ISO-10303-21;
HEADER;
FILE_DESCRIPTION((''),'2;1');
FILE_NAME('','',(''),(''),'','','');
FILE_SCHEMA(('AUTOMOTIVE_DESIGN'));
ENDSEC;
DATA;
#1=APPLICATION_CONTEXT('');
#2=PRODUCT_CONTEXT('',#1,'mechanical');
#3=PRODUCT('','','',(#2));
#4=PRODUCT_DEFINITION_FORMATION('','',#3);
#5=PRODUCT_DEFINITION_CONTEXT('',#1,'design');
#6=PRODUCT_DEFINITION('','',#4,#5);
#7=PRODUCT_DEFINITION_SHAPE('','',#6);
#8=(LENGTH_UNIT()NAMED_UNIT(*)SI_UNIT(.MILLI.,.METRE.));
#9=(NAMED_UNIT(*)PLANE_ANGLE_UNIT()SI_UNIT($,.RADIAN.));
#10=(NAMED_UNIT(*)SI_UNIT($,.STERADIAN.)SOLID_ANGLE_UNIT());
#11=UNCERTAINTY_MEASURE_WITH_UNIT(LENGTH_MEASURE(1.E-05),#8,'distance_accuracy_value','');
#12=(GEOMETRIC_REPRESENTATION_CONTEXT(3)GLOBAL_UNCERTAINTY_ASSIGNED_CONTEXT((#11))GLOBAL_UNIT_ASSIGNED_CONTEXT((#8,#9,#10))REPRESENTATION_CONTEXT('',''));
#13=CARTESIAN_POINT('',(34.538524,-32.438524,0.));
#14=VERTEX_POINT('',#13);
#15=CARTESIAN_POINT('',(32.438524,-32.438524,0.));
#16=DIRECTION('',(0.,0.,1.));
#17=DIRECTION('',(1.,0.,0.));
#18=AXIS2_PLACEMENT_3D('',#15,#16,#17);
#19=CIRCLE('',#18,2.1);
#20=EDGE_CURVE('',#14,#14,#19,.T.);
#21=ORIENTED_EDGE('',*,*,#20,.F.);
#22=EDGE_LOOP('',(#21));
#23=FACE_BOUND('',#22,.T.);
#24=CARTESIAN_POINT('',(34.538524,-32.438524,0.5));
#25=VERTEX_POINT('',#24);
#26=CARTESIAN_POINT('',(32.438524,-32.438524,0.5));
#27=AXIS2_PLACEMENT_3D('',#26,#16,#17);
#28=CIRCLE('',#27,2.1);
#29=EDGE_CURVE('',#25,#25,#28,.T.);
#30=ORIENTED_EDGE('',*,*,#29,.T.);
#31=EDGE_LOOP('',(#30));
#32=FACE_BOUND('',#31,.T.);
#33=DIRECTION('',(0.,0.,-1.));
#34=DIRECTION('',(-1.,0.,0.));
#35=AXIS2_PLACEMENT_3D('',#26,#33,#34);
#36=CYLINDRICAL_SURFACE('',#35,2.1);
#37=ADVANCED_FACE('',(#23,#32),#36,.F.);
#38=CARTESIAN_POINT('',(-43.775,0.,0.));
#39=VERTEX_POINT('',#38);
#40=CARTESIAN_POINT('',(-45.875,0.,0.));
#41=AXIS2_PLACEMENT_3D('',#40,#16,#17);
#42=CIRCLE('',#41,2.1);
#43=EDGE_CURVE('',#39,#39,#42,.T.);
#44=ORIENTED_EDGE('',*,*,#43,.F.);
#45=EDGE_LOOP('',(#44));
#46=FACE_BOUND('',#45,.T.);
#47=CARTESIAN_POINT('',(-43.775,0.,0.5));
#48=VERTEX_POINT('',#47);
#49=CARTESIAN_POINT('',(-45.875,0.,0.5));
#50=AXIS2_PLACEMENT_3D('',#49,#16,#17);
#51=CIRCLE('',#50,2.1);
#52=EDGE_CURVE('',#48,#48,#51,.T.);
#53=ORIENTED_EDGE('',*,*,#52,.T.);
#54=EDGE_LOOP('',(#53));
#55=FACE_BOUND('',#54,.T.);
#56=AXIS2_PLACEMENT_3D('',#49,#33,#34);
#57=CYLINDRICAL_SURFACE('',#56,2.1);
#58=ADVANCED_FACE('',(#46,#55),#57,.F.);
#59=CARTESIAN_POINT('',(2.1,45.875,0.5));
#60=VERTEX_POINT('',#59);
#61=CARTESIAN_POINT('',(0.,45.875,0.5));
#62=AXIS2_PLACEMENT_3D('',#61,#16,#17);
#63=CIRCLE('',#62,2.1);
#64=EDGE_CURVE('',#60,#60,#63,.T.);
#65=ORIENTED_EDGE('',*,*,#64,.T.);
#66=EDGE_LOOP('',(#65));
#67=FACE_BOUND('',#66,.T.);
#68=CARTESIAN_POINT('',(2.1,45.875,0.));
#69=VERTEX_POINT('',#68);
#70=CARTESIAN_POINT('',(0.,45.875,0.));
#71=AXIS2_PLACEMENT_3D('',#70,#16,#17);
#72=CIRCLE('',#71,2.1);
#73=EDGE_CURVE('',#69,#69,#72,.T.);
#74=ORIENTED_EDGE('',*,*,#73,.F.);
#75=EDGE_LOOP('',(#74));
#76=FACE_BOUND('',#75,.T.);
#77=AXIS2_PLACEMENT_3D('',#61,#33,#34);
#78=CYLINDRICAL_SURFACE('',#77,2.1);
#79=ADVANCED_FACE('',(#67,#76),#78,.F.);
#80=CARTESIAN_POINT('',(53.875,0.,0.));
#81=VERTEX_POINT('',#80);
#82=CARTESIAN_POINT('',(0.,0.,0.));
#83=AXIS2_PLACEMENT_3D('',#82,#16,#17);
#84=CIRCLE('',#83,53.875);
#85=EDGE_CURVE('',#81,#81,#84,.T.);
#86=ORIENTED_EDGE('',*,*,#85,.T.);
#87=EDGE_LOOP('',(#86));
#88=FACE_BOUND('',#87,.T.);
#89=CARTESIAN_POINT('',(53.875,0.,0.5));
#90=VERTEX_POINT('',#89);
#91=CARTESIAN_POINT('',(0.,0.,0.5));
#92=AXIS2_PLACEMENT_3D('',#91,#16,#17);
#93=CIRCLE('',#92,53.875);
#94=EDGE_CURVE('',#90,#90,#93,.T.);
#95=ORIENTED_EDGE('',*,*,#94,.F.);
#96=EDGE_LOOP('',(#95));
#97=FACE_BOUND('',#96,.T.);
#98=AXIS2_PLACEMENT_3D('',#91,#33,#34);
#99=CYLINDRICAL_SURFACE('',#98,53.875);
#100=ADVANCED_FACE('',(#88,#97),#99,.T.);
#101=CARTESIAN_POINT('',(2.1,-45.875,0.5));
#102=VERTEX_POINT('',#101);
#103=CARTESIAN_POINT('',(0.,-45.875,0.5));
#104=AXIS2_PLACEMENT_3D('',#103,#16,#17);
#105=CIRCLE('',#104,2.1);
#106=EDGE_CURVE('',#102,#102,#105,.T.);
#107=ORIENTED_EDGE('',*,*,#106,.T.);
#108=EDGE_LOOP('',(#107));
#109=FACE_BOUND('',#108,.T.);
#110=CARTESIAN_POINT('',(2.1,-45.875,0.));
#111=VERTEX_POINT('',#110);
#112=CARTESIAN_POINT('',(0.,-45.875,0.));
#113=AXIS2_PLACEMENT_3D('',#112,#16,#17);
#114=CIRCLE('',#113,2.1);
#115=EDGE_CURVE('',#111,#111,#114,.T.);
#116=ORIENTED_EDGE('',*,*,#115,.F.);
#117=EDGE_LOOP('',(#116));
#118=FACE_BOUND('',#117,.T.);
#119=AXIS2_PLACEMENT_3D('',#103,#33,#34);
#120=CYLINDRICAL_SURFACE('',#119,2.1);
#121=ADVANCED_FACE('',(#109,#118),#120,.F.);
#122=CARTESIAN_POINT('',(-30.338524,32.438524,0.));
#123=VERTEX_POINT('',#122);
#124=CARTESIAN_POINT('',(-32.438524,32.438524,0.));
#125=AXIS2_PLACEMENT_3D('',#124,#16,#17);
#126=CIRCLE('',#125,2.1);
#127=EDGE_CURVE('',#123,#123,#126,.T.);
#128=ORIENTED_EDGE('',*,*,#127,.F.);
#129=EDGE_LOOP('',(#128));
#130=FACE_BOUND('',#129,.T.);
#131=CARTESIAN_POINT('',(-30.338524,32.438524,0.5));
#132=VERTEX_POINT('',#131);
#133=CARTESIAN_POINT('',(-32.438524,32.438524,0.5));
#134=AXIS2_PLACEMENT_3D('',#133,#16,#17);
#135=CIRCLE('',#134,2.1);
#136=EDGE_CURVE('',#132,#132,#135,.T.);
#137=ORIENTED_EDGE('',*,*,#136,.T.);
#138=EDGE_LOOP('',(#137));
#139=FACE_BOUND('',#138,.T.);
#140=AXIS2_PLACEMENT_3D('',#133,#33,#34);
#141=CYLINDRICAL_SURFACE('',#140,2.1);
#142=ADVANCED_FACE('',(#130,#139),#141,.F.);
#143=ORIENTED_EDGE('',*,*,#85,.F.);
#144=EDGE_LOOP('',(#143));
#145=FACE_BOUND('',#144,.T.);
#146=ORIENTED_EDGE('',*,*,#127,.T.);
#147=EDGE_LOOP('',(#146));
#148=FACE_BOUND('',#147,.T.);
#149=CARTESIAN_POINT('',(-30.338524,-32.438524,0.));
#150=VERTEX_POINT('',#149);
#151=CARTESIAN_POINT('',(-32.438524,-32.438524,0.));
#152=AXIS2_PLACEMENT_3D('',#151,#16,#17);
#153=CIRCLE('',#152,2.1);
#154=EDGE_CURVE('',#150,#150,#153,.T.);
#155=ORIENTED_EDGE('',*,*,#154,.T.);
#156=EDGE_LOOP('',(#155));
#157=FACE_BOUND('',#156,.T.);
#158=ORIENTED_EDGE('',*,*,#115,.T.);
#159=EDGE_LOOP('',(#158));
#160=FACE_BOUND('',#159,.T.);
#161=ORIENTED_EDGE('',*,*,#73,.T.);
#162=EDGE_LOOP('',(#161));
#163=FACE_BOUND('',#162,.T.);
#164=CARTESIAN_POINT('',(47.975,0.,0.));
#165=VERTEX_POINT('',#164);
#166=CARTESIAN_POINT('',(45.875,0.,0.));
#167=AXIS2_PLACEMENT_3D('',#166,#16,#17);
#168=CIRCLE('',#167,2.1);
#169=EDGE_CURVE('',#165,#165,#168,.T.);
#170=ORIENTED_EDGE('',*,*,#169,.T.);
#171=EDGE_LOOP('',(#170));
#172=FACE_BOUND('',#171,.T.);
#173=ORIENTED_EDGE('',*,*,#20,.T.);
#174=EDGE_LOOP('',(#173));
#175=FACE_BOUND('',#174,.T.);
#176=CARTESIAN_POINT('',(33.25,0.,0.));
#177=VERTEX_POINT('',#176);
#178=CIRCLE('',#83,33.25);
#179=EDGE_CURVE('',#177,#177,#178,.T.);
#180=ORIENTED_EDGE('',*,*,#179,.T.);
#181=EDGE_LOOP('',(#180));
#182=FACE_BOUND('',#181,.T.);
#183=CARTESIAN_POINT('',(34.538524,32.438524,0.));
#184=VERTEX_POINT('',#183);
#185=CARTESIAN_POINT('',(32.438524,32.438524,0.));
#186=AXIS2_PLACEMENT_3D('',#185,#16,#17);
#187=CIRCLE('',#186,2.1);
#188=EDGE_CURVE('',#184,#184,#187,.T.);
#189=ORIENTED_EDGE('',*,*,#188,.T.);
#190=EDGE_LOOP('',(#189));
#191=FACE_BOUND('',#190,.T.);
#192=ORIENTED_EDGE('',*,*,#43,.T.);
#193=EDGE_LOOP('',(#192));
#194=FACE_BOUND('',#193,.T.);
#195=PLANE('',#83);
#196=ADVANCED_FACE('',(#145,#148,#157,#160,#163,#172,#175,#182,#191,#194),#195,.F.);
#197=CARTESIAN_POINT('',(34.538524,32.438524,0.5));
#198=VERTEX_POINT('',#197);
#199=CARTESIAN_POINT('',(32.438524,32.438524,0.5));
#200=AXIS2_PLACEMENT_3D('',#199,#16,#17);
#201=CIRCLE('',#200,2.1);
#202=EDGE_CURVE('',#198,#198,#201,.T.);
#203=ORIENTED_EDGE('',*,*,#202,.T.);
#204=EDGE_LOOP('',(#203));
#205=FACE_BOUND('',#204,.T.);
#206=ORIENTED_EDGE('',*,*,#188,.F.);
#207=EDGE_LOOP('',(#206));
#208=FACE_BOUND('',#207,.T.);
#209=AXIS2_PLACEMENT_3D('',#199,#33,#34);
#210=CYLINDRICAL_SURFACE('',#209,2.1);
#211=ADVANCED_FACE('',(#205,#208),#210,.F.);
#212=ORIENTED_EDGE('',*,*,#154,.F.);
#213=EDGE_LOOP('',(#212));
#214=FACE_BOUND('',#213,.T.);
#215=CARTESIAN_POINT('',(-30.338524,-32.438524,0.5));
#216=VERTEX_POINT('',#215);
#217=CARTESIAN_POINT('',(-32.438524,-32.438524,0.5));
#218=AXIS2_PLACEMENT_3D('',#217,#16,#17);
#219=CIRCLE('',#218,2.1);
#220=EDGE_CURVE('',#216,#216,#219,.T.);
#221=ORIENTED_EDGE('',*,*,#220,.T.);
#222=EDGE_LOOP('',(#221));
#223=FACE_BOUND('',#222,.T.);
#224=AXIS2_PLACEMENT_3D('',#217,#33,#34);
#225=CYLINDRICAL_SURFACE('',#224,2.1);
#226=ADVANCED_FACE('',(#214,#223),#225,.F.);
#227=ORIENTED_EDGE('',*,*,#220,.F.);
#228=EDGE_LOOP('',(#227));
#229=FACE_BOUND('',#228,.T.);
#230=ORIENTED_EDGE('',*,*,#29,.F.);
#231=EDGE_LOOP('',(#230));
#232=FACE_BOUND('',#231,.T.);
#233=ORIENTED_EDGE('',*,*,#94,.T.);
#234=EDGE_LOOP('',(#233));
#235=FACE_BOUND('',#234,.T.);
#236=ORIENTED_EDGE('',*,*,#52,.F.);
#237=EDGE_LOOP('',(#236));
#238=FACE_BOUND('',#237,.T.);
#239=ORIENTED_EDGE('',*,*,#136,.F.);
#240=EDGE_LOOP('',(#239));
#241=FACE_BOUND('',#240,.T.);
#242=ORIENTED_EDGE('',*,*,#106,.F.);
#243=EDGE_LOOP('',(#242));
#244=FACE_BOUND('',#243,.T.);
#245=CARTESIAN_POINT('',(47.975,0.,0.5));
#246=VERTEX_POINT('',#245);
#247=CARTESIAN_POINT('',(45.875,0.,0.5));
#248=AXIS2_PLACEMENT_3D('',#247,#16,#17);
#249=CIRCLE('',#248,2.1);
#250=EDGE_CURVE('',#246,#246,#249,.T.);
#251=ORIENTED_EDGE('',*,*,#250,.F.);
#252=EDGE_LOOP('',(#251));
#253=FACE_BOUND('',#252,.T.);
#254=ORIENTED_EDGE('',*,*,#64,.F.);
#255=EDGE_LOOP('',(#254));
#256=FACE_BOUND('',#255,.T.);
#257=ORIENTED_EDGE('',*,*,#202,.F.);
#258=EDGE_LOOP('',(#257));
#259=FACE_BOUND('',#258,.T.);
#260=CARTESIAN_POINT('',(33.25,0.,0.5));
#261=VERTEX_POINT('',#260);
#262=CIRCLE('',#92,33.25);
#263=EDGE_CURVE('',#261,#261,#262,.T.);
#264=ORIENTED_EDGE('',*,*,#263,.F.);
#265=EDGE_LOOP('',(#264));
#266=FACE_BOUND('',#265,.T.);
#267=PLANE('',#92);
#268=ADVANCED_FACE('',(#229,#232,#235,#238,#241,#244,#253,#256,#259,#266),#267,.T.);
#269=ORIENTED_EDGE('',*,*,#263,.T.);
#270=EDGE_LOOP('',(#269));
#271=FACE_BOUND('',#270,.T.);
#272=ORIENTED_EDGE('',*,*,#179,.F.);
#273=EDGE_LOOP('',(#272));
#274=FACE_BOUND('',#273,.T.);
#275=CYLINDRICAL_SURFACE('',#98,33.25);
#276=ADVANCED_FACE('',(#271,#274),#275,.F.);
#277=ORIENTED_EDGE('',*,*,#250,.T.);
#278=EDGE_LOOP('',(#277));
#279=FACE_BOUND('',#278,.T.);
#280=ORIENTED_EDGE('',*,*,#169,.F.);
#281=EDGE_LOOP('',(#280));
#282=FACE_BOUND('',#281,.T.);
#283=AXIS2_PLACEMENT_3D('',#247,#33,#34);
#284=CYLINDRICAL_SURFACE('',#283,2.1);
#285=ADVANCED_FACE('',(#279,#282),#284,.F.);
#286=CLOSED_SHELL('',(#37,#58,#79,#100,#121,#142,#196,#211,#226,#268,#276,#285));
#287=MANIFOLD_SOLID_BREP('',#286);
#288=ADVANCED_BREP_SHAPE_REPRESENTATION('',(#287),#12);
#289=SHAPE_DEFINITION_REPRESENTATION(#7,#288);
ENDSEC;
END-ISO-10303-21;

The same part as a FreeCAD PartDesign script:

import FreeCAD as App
import Part
import Sketcher
from FreeCAD import Vector

doc = App.newDocument("Part")
body = doc.addObject("PartDesign::Body", "Body")

# Sketch on XY plane
sketch1 = body.newObject("Sketcher::SketchObject", "Sketch")
sketch1.AttachmentSupport = (doc.getObject("XY_Plane"), [""])
sketch1.MapMode = "FlatFace"
sketch1.addGeometry([
    Part.Circle(Vector(0, 0, 0), Vector(0, 0, 1), 53.9),  # 0
    Part.Circle(Vector(-32.4, -32.4, 0), Vector(0, 0, 1), 2.1),  # 1
    Part.Circle(Vector(0, -45.9, 0), Vector(0, 0, 1), 2.1),  # 2
    Part.Circle(Vector(32.4, -32.4, 0), Vector(0, 0, 1), 2.1),  # 3
    Part.Circle(Vector(-45.9, 0, 0), Vector(0, 0, 1), 2.1),  # 4
    Part.Circle(Vector(-32.4, 32.4, 0), Vector(0, 0, 1), 2.1),  # 5
    Part.Circle(Vector(0, 0, 0), Vector(0, 0, 1), 33.2),  # 6
    Part.Circle(Vector(45.9, 0, 0), Vector(0, 0, 1), 2.1),  # 7
    Part.Circle(Vector(0, 45.9, 0), Vector(0, 0, 1), 2.1),  # 8
    Part.Circle(Vector(32.4, 32.4, 0), Vector(0, 0, 1), 2.1),  # 9
], False)
sketch1.addConstraint([
    Sketcher.Constraint("Coincident", 0, 3, -1, 1),
    Sketcher.Constraint("Coincident", 6, 3, -1, 1),
    Sketcher.Constraint("Equal", 1, 2),
    Sketcher.Constraint("Equal", 2, 3),
    Sketcher.Constraint("Equal", 3, 4),
    Sketcher.Constraint("Equal", 4, 5),
    Sketcher.Constraint("Equal", 5, 7),
    Sketcher.Constraint("Equal", 7, 8),
    Sketcher.Constraint("Equal", 8, 9),
    Sketcher.Constraint("Symmetric", 3, 3, 5, 3, -1, 1),
    Sketcher.Constraint("Symmetric", 4, 3, 7, 3, -1, 1),
    Sketcher.Constraint("Symmetric", 2, 3, 8, 3, -1, 1),
    Sketcher.Constraint("Symmetric", 1, 3, 9, 3, -1, 1),
    Sketcher.Constraint("Symmetric", 1, 3, 3, 3, -2),
    Sketcher.Constraint("PointOnObject", 2, 3, -2),
    Sketcher.Constraint("PointOnObject", 4, 3, -1),
    Sketcher.Constraint("Diameter", 1, 4.2),
    Sketcher.Constraint("Diameter", 6, 66.5),
    Sketcher.Constraint("Diameter", 0, 107.75),
    Sketcher.Constraint("DistanceY", 2, 3, -1, 1, 45.875),
    Sketcher.Constraint("DistanceX", 4, 3, -1, 1, 45.875),
    Sketcher.Constraint("DistanceX", 1, 3, -1, 1, 32.438524),
    Sketcher.Constraint("DistanceY", 1, 3, -1, 1, 32.438524),
])
pad1 = body.newObject("PartDesign::Pad", "Pad")
pad1.Profile = sketch1
pad1.Length = 0.5

doc.recompute()
